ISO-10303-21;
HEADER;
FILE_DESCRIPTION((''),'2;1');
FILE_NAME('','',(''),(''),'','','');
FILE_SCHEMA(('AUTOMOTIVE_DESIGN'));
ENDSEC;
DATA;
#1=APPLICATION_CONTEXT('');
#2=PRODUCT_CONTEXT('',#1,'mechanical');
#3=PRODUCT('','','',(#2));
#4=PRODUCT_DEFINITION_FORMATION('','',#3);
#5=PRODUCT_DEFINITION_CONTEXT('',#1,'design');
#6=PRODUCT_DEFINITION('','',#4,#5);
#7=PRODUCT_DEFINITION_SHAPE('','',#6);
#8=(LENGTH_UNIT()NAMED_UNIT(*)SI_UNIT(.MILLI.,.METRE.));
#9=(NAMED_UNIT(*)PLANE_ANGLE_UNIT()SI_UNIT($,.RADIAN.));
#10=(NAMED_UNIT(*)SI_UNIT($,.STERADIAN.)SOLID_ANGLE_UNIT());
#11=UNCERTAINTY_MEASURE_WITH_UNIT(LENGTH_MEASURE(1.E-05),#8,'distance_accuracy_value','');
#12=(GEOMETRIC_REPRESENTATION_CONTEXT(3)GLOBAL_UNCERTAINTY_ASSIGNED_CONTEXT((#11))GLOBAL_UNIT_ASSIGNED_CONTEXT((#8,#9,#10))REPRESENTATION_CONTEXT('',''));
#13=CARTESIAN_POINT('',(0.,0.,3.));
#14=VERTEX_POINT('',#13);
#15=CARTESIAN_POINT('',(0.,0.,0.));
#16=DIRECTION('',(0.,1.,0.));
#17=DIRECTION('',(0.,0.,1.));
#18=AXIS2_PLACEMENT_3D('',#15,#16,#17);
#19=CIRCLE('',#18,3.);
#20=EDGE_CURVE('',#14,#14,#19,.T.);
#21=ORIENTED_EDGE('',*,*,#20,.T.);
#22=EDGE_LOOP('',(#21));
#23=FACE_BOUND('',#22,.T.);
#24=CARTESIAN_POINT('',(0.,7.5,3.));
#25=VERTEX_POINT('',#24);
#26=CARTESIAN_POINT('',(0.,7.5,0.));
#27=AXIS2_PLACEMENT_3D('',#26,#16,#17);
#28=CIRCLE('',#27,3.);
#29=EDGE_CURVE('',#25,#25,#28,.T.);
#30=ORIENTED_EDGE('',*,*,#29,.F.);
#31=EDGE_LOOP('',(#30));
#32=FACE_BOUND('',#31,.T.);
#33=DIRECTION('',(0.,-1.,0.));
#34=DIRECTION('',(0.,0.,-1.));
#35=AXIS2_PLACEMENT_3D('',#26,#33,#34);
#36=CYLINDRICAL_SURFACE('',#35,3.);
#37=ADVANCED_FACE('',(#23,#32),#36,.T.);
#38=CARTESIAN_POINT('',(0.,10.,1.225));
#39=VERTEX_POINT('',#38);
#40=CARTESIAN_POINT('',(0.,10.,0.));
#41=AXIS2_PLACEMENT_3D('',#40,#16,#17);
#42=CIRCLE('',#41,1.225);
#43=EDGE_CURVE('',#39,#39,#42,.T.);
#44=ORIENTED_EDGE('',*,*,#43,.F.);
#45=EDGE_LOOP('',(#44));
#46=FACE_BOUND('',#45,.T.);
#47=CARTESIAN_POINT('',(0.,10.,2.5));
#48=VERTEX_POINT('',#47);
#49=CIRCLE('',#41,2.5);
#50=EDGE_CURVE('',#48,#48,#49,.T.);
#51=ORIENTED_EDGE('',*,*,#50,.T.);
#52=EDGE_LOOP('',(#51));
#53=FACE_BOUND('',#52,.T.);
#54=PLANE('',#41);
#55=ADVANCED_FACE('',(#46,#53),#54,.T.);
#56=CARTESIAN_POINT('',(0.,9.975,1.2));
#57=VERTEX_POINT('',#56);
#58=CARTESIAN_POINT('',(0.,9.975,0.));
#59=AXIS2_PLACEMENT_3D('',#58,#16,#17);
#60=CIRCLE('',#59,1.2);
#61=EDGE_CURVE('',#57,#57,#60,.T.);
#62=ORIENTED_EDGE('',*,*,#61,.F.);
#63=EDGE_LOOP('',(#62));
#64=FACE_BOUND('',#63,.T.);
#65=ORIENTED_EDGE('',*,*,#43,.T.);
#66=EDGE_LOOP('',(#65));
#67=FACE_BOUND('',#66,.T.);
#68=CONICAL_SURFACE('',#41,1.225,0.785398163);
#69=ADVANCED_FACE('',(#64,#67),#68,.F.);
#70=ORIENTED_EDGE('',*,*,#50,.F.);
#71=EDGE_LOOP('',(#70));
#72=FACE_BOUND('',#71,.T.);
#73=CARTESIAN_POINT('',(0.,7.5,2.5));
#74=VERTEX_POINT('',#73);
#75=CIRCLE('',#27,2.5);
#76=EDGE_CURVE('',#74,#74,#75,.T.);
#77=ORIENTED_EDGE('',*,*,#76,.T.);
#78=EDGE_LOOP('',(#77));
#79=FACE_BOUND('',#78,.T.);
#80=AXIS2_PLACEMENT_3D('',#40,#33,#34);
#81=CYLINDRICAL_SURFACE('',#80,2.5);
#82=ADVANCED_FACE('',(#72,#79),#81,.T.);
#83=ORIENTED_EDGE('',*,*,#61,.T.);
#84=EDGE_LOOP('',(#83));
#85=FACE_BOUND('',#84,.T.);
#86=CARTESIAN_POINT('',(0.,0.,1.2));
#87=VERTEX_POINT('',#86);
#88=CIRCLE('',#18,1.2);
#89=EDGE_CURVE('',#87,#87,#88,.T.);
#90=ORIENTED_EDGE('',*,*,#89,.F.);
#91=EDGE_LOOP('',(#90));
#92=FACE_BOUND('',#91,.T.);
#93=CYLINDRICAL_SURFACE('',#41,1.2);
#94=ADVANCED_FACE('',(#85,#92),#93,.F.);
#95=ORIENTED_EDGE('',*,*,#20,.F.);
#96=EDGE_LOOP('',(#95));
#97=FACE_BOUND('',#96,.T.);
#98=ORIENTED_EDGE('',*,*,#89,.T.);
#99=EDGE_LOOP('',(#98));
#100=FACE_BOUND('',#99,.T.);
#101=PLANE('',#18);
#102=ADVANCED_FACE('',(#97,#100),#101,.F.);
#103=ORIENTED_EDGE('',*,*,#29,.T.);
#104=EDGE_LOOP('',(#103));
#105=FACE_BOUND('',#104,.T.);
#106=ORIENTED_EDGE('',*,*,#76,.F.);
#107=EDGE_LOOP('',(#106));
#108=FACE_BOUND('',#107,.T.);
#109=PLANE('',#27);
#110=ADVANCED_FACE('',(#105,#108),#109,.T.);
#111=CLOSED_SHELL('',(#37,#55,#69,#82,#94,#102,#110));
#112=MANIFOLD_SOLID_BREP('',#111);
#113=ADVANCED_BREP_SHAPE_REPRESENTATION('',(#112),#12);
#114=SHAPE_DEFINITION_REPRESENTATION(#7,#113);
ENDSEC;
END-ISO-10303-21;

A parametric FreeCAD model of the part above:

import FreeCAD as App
import Part
import Sketcher
from FreeCAD import Vector
Q = App.Units.Quantity

doc = App.newDocument("Part")
body = doc.addObject("PartDesign::Body", "Body")

sketch1 = body.newObject("Sketcher::SketchObject", "Sketch")
sketch1.AttachmentSupport = (doc.getObject("XZ_Plane"), [""])
sketch1.MapMode = "FlatFace"
sketch1.addGeometry(Part.Circle(Vector(0, 0, 0), Vector(0, 0, 1), 3), False)
sketch1.addConstraint(Sketcher.Constraint("Coincident", 0, 3, -1, 1))
sketch1.addConstraint(Sketcher.Constraint("Diameter", 0, Q("6 mm")))
pad1 = body.newObject("PartDesign::Pad", "Pad")
pad1.Profile = sketch1
pad1.Length = 7.5
pad1.Reversed = True

sketch2 = body.newObject("Sketcher::SketchObject", "Sketch001")
sketch2.AttachmentSupport = (doc.getObject("XZ_Plane"), [""])
sketch2.MapMode = "FlatFace"
sketch2.AttachmentOffset = App.Placement(Vector(0, 0, -7.5), App.Rotation())
sketch2.addGeometry(Part.Circle(Vector(0, 0, 0), Vector(0, 0, 1), 2.5), False)
sketch2.addConstraint(Sketcher.Constraint("Coincident", 0, 3, -1, 1))
sketch2.addConstraint(Sketcher.Constraint("Diameter", 0, Q("5 mm")))
pad2 = body.newObject("PartDesign::Pad", "Pad001")
pad2.Profile = sketch2
pad2.Length = 2.5
pad2.Reversed = True

sketch3 = body.newObject("Sketcher::SketchObject", "Sketch002")
sketch3.AttachmentSupport = (doc.getObject("XZ_Plane"), [""])
sketch3.MapMode = "FlatFace"
sketch3.AttachmentOffset = App.Placement(Vector(0, 0, -10), App.Rotation())
sketch3.addGeometry(Part.Circle(Vector(0, 0, 0), Vector(0, 0, 1), 1.2), False)
sketch3.addConstraint(Sketcher.Constraint("Coincident", 0, 3, -1, 1))
sketch3.addConstraint(Sketcher.Constraint("Diameter", 0, Q("2.4 mm")))
doc.recompute()
hole = body.newObject("PartDesign::Hole", "Hole")
hole.Profile = sketch3
hole.ThreadType = "None"
hole.Diameter = 2.4
hole.DepthType = "ThroughAll"
hole.HoleCutType = "Countersink"
hole.HoleCutDiameter = 2.45
hole.HoleCutCountersinkAngle = 90
hole.Reversed = True

doc.recompute()
